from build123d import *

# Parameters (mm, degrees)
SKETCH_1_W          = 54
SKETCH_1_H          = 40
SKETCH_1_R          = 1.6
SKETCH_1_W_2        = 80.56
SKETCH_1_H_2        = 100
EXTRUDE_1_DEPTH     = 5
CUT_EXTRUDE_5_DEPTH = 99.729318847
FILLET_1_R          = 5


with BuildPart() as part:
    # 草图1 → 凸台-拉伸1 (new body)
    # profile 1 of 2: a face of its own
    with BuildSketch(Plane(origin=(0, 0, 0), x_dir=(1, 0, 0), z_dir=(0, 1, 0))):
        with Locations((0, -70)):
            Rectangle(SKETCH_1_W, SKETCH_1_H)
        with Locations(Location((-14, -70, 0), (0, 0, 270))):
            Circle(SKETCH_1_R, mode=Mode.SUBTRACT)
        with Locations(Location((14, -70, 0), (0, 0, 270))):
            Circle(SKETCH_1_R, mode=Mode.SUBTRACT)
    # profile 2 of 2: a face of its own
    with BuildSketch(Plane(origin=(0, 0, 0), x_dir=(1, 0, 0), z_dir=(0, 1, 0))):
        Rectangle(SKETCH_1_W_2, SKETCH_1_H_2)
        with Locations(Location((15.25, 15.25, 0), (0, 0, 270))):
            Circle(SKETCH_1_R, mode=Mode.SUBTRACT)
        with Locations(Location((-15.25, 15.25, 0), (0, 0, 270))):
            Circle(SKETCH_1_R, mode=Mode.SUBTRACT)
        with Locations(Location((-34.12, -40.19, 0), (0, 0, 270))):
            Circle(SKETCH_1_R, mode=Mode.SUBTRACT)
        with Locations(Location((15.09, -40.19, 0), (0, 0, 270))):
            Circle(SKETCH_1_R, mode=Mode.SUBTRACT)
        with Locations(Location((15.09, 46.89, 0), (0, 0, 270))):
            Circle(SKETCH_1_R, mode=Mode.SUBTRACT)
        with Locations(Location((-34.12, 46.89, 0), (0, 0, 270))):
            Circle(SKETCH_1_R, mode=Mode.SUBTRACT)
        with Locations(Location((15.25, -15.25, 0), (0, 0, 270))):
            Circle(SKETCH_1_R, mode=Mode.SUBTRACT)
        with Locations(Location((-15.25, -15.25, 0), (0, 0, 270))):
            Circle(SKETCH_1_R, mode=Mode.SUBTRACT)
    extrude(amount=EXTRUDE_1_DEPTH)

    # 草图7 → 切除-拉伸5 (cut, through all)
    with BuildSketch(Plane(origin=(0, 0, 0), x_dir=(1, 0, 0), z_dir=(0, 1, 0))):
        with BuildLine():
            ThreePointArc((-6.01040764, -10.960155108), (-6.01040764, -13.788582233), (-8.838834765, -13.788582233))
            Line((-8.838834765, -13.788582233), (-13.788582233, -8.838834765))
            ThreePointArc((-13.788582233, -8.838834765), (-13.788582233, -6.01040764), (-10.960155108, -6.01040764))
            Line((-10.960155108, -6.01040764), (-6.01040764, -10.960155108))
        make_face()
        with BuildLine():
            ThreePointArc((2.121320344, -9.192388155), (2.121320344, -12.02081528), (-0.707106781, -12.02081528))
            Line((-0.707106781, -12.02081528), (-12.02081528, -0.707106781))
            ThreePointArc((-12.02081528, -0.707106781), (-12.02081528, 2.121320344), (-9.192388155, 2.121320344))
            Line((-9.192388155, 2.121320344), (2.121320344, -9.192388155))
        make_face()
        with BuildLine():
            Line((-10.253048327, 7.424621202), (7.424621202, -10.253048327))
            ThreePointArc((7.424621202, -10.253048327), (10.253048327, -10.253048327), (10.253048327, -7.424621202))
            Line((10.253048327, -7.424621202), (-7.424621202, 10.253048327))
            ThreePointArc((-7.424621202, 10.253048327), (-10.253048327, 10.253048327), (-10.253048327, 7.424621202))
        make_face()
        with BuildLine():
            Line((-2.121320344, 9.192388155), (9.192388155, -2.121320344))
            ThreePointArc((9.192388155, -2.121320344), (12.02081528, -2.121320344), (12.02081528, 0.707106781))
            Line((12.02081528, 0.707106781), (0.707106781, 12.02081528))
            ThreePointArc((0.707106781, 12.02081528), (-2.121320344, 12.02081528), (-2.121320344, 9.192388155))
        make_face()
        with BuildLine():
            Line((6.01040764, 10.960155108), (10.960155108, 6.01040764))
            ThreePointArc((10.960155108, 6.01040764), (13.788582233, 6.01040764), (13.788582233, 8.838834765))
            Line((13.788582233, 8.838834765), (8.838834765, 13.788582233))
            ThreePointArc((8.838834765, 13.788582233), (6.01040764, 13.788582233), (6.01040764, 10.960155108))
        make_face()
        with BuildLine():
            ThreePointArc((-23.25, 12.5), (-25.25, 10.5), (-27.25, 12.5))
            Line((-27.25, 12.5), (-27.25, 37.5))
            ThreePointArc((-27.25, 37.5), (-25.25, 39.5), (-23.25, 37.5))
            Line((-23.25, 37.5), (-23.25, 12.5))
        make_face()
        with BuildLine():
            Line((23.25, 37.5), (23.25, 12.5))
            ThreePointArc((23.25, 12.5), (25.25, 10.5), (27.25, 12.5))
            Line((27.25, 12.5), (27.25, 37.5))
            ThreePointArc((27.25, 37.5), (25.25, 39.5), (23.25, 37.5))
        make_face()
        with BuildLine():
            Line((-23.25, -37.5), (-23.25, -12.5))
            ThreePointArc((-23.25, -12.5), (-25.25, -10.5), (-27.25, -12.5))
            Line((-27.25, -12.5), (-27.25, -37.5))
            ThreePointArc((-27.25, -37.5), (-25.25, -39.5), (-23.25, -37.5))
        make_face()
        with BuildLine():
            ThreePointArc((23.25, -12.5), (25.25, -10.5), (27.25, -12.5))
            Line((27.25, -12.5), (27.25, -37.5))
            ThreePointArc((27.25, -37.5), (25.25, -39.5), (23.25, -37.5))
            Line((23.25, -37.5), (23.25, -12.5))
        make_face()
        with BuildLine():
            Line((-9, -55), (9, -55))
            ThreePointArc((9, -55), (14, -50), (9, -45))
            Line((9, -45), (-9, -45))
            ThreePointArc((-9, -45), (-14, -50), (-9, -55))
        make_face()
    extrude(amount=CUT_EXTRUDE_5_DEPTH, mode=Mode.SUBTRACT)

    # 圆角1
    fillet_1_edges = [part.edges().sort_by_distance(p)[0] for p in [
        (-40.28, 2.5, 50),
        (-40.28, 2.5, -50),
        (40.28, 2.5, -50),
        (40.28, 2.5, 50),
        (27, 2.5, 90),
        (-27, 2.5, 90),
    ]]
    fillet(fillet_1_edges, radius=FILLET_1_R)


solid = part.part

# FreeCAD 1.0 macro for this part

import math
import FreeCAD as App
import Part
import Sketcher
from FreeCAD import Vector
Q = App.Units.Quantity


def edges_at(feature, points):
    """Names of the edges that pass closest to the given points."""
    edges = feature.Shape.Edges
    near = lambda p: min(range(len(edges)), key=lambda i: edges[i].distToShape(Part.Vertex(*p))[0])
    return sorted({f"Edge{near(p) + 1}" for p in points})


def add_polygon(sketch, points):
    """Adds a closed chain of lines whose ends are joined by coincident constraints."""
    first, n = sketch.GeometryCount, len(points)
    for a, b in zip(points, points[1:] + points[:1]):
        sketch.addGeometry(Part.LineSegment(App.Vector(*a, 0), App.Vector(*b, 0)), False)
    for i in range(n):
        sketch.addConstraint(Sketcher.Constraint("Coincident", first + i, 2, first + (i + 1) % n, 1))

doc = App.newDocument("Part")
body = doc.addObject("PartDesign::Body", "Body")

# Sketch on XZ plane
sketch1 = body.newObject("Sketcher::SketchObject", "Sketch")
sketch1.AttachmentSupport = (doc.getObject("XZ_Plane"), [""])
sketch1.MapMode = "FlatFace"
add_polygon(sketch1, [(-27, 50), (-27, 90), (27, 90), (27, 50), (40.3, 50), (40.3, -50), (-40.3, -50), (-40.3, 50)])  # lines 0-7
sketch1.addGeometry(Part.Circle(Vector(-14, 70, 0), Vector(0, 0, 1), 1.6), False)  # 8
sketch1.addGeometry(Part.Circle(Vector(14, 70, 0), Vector(0, 0, 1), 1.6), False)  # 9
sketch1.addGeometry(Part.Circle(Vector(15.1, -46.9, 0), Vector(0, 0, 1), 1.6), False)  # 10
sketch1.addGeometry(Part.Circle(Vector(-34.1, 40.2, 0), Vector(0, 0, 1), 1.6), False)  # 11
sketch1.addGeometry(Part.Circle(Vector(-15.2, 15.2, 0), Vector(0, 0, 1), 1.6), False)  # 12
sketch1.addGeometry(Part.Circle(Vector(15.1, 40.2, 0), Vector(0, 0, 1), 1.6), False)  # 13
sketch1.addGeometry(Part.Circle(Vector(15.2, 15.2, 0), Vector(0, 0, 1), 1.6), False)  # 14
sketch1.addGeometry(Part.Circle(Vector(-15.2, -15.2, 0), Vector(0, 0, 1), 1.6), False)  # 15
sketch1.addGeometry(Part.Circle(Vector(-34.1, -46.9, 0), Vector(0, 0, 1), 1.6), False)  # 16
sketch1.addGeometry(Part.Circle(Vector(15.2, -15.2, 0), Vector(0, 0, 1), 1.6), False)  # 17
sketch1.addConstraint([
    Sketcher.Constraint("Vertical", 0),
    Sketcher.Constraint("Horizontal", 1),
    Sketcher.Constraint("Vertical", 2),
    Sketcher.Constraint("Horizontal", 3),
    Sketcher.Constraint("Vertical", 4),
    Sketcher.Constraint("Horizontal", 5),
    Sketcher.Constraint("Vertical", 6),
    Sketcher.Constraint("Horizontal", 7),
    Sketcher.Constraint("Equal", 8, 9),
    Sketcher.Constraint("Equal", 9, 10),
    Sketcher.Constraint("Equal", 10, 11),
    Sketcher.Constraint("Equal", 11, 12),
    Sketcher.Constraint("Equal", 12, 13),
    Sketcher.Constraint("Equal", 13, 14),
    Sketcher.Constraint("Equal", 14, 15),
    Sketcher.Constraint("Equal", 15, 16),
    Sketcher.Constraint("Equal", 16, 17),
    Sketcher.Constraint("Symmetric", 14, 3, 15, 3, -1, 1),
    Sketcher.Constraint("Symmetric", 12, 3, 17, 3, -1, 1),
    Sketcher.Constraint("Symmetric", 3, 2, 5, 2, -1, 1),
    Sketcher.Constraint("Symmetric", 8, 3, 9, 3, -2),
    Sketcher.Constraint("Symmetric", 12, 3, 14, 3, -2),
    Sketcher.Constraint("Symmetric", 2, 2, 7, 2, -2),
    Sketcher.Constraint("Horizontal", 11, 3, 13, 3),
    Sketcher.Constraint("Horizontal", 10, 3, 16, 3),
    Sketcher.Constraint("Vertical", 10, 3, 13, 3),
    Sketcher.Constraint("Vertical", 11, 3, 16, 3),
    Sketcher.Constraint("Diameter", 8, Q("3.2 mm")),
    Sketcher.Constraint("DistanceX", 1, 1, 1, 2, Q("54 mm")),
    Sketcher.Constraint("DistanceY", 0, 1, 0, 2, Q("40 mm")),
    Sketcher.Constraint("DistanceY", 4, 2, 4, 1, Q("100 mm")),
    Sketcher.Constraint("DistanceX", 8, 3, -1, 1, Q("14 mm")),
    Sketcher.Constraint("DistanceY", -1, 1, 8, 3, Q("70 mm")),
    Sketcher.Constraint("DistanceX", 3, 1, 3, 2, Q("13.28 mm")),
    Sketcher.Constraint("DistanceX", 12, 3, 14, 3, Q("30.5 mm")),
    Sketcher.Constraint("DistanceY", 15, 3, 12, 3, Q("30.5 mm")),
    Sketcher.Constraint("DistanceX", 16, 3, 4, 2, Q("74.4 mm")),
    Sketcher.Constraint("DistanceX", -1, 1, 10, 3, Q("15.09 mm")),
    Sketcher.Constraint("DistanceY", 10, 3, -1, 1, Q("46.89 mm")),
    Sketcher.Constraint("DistanceY", -1, 1, 11, 3, Q("40.19 mm")),
])
pad1 = body.newObject("PartDesign::Pad", "Pad")
pad1.Profile = sketch1
pad1.Length = 5
pad1.Reversed = True

# Sketch on XZ plane
sketch2 = body.newObject("Sketcher::SketchObject", "Sketch001")
sketch2.AttachmentSupport = (doc.getObject("XZ_Plane"), [""])
sketch2.MapMode = "FlatFace"
sketch2.addGeometry([
    Part.ArcOfCircle(Part.Circle(Vector(-7.4, 12.4, 0), Vector(0, 0, 1), 2), math.radians(-45), math.radians(135)),  # 0
    Part.LineSegment(Vector(-6, 11, 0), Vector(-11, 6, 0)),  # 1
    Part.ArcOfCircle(Part.Circle(Vector(-12.4, 7.4, 0), Vector(0, 0, 1), 2), math.radians(135), math.radians(315)),  # 2
    Part.LineSegment(Vector(-13.8, 8.8, 0), Vector(-8.8, 13.8, 0)),  # 3
    Part.ArcOfCircle(Part.Circle(Vector(0.7, 10.6, 0), Vector(0, 0, 1), 2), math.radians(-45), math.radians(135)),  # 4
    Part.LineSegment(Vector(2.1, 9.2, 0), Vector(-9.2, -2.1, 0)),  # 5
    Part.ArcOfCircle(Part.Circle(Vector(-10.6, -0.7, 0), Vector(0, 0, 1), 2), math.radians(135), math.radians(315)),  # 6
    Part.LineSegment(Vector(-12, 0.7, 0), Vector(-0.7, 12, 0)),  # 7
    Part.LineSegment(Vector(-10.3, -7.4, 0), Vector(7.4, 10.3, 0)),  # 8
    Part.ArcOfCircle(Part.Circle(Vector(8.8, 8.8, 0), Vector(0, 0, 1), 2), math.radians(-45), math.radians(135)),  # 9
    Part.LineSegment(Vector(10.3, 7.4, 0), Vector(-7.4, -10.3, 0)),  # 10
    Part.ArcOfCircle(Part.Circle(Vector(-8.8, -8.8, 0), Vector(0, 0, 1), 2), math.radians(135), math.radians(315)),  # 11
    Part.LineSegment(Vector(-2.1, -9.2, 0), Vector(9.2, 2.1, 0)),  # 12
    Part.ArcOfCircle(Part.Circle(Vector(10.6, 0.7, 0), Vector(0, 0, 1), 2), math.radians(-45), math.radians(135)),  # 13
    Part.LineSegment(Vector(12, -0.7, 0), Vector(0.7, -12, 0)),  # 14
    Part.ArcOfCircle(Part.Circle(Vector(-0.7, -10.6, 0), Vector(0, 0, 1), 2), math.radians(135), math.radians(315)),  # 15
    Part.LineSegment(Vector(6, -11, 0), Vector(11, -6, 0)),  # 16
    Part.ArcOfCircle(Part.Circle(Vector(12.4, -7.4, 0), Vector(0, 0, 1), 2), math.radians(-45), math.radians(135)),  # 17
    Part.LineSegment(Vector(13.8, -8.8, 0), Vector(8.8, -13.8, 0)),  # 18
    Part.ArcOfCircle(Part.Circle(Vector(7.4, -12.4, 0), Vector(0, 0, 1), 2), math.radians(135), math.radians(315)),  # 19
    Part.ArcOfCircle(Part.Circle(Vector(-25.2, -12.5, 0), Vector(0, 0, 1), 2), math.radians(0), math.radians(180)),  # 20
    Part.LineSegment(Vector(-23.2, -12.5, 0), Vector(-23.2, -37.5, 0)),  # 21
    Part.ArcOfCircle(Part.Circle(Vector(-25.2, -37.5, 0), Vector(0, 0, 1), 2), math.radians(180), math.radians(360)),  # 22
    Part.LineSegment(Vector(-27.2, -37.5, 0), Vector(-27.2, -12.5, 0)),  # 23
    Part.LineSegment(Vector(23.2, -37.5, 0), Vector(23.2, -12.5, 0)),  # 24
    Part.ArcOfCircle(Part.Circle(Vector(25.2, -12.5, 0), Vector(0, 0, 1), 2), math.radians(0), math.radians(180)),  # 25
    Part.LineSegment(Vector(27.2, -12.5, 0), Vector(27.2, -37.5, 0)),  # 26
    Part.ArcOfCircle(Part.Circle(Vector(25.2, -37.5, 0), Vector(0, 0, 1), 2), math.radians(180), math.radians(360)),  # 27
    Part.LineSegment(Vector(-23.2, 37.5, 0), Vector(-23.2, 12.5, 0)),  # 28
    Part.ArcOfCircle(Part.Circle(Vector(-25.2, 12.5, 0), Vector(0, 0, 1), 2), math.radians(180), math.radians(360)),  # 29
    Part.LineSegment(Vector(-27.2, 12.5, 0), Vector(-27.2, 37.5, 0)),  # 30
    Part.ArcOfCircle(Part.Circle(Vector(-25.2, 37.5, 0), Vector(0, 0, 1), 2), math.radians(0), math.radians(180)),  # 31
    Part.ArcOfCircle(Part.Circle(Vector(25.2, 12.5, 0), Vector(0, 0, 1), 2), math.radians(180), math.radians(360)),  # 32
    Part.LineSegment(Vector(23.2, 12.5, 0), Vector(23.2, 37.5, 0)),  # 33
    Part.ArcOfCircle(Part.Circle(Vector(25.2, 37.5, 0), Vector(0, 0, 1), 2), math.radians(0), math.radians(180)),  # 34
    Part.LineSegment(Vector(27.2, 37.5, 0), Vector(27.2, 12.5, 0)),  # 35
    Part.LineSegment(Vector(-9, 55, 0), Vector(9, 55, 0)),  # 36
    Part.ArcOfCircle(Part.Circle(Vector(9, 50, 0), Vector(0, 0, 1), 5), math.radians(-90), math.radians(90)),  # 37
    Part.LineSegment(Vector(9, 45, 0), Vector(-9, 45, 0)),  # 38
    Part.ArcOfCircle(Part.Circle(Vector(-9, 50, 0), Vector(0, 0, 1), 5), math.radians(90), math.radians(270)),  # 39
], False)
sketch2.addConstraint([
    Sketcher.Constraint("Tangent", 0, 1, 1, 1),
    Sketcher.Constraint("Tangent", 1, 2, 2, 2),
    Sketcher.Constraint("Tangent", 2, 1, 3, 1),
    Sketcher.Constraint("Tangent", 3, 2, 0, 2),
    Sketcher.Constraint("Tangent", 4, 1, 5, 1),
    Sketcher.Constraint("Tangent", 5, 2, 6, 2),
    Sketcher.Constraint("Tangent", 6, 1, 7, 1),
    Sketcher.Constraint("Tangent", 7, 2, 4, 2),
    Sketcher.Constraint("Tangent", 8, 2, 9, 2),
    Sketcher.Constraint("Tangent", 9, 1, 10, 1),
    Sketcher.Constraint("Tangent", 10, 2, 11, 2),
    Sketcher.Constraint("Tangent", 11, 1, 8, 1),
    Sketcher.Constraint("Tangent", 12, 2, 13, 2),
    Sketcher.Constraint("Tangent", 13, 1, 14, 1),
    Sketcher.Constraint("Tangent", 14, 2, 15, 2),
    Sketcher.Constraint("Tangent", 15, 1, 12, 1),
    Sketcher.Constraint("Tangent", 16, 2, 17, 2),
    Sketcher.Constraint("Tangent", 17, 1, 18, 1),
    Sketcher.Constraint("Tangent", 18, 2, 19, 2),
    Sketcher.Constraint("Tangent", 19, 1, 16, 1),
    Sketcher.Constraint("Tangent", 20, 1, 21, 1),
    Sketcher.Constraint("Tangent", 21, 2, 22, 2),
    Sketcher.Constraint("Tangent", 22, 1, 23, 1),
    Sketcher.Constraint("Tangent", 23, 2, 20, 2),
    Sketcher.Constraint("Tangent", 24, 2, 25, 2),
    Sketcher.Constraint("Tangent", 25, 1, 26, 1),
    Sketcher.Constraint("Tangent", 26, 2, 27, 2),
    Sketcher.Constraint("Tangent", 27, 1, 24, 1),
    Sketcher.Constraint("Tangent", 28, 2, 29, 2),
    Sketcher.Constraint("Tangent", 29, 1, 30, 1),
    Sketcher.Constraint("Tangent", 30, 2, 31, 2),
    Sketcher.Constraint("Tangent", 31, 1, 28, 1),
    Sketcher.Constraint("Tangent", 32, 1, 33, 1),
    Sketcher.Constraint("Tangent", 33, 2, 34, 2),
    Sketcher.Constraint("Tangent", 34, 1, 35, 1),
    Sketcher.Constraint("Tangent", 35, 2, 32, 2),
    Sketcher.Constraint("Tangent", 36, 2, 37, 2),
    Sketcher.Constraint("Tangent", 37, 1, 38, 1),
    Sketcher.Constraint("Tangent", 38, 2, 39, 2),
    Sketcher.Constraint("Tangent", 39, 1, 36, 1),
    Sketcher.Constraint("Vertical", 21),
    Sketcher.Constraint("Vertical", 23),
    Sketcher.Constraint("Vertical", 24),
    Sketcher.Constraint("Vertical", 26),
    Sketcher.Constraint("Vertical", 28),
    Sketcher.Constraint("Vertical", 30),
    Sketcher.Constraint("Vertical", 33),
    Sketcher.Constraint("Vertical", 35),
    Sketcher.Constraint("Horizontal", 36),
    Sketcher.Constraint("Horizontal", 38),
    Sketcher.Constraint("Equal", 0, 2),
    Sketcher.Constraint("Equal", 2, 4),
    Sketcher.Constraint("Equal", 4, 6),
    Sketcher.Constraint("Equal", 6, 9),
    Sketcher.Constraint("Equal", 9, 11),
    Sketcher.Constraint("Equal", 11, 13),
    Sketcher.Constraint("Equal", 13, 15),
    Sketcher.Constraint("Equal", 15, 17),
    Sketcher.Constraint("Equal", 17, 19),
    Sketcher.Constraint("Equal", 19, 20),
    Sketcher.Constraint("Equal", 22, 25),
    Sketcher.Constraint("Equal", 27, 29),
    Sketcher.Constraint("Equal", 31, 32),
    Sketcher.Constraint("Symmetric", 9, 3, 11, 3, -1, 1),
    Sketcher.Constraint("Symmetric", 6, 3, 13, 3, -1, 1),
    Sketcher.Constraint("Symmetric", 4, 3, 15, 3, -1, 1),
    Sketcher.Constraint("Symmetric", 2, 3, 17, 3, -1, 1),
    Sketcher.Constraint("Symmetric", 0, 3, 19, 3, -1, 1),
    Sketcher.Constraint("Symmetric", 25, 3, 29, 3, -1, 1),
    Sketcher.Constraint("Symmetric", 20, 3, 32, 3, -1, 1),
    Sketcher.Constraint("Symmetric", 20, 3, 25, 3, -2),
    Sketcher.Constraint("Parallel", 3, 5),
    Sketcher.Constraint("Parallel", 7, 8),
    Sketcher.Constraint("Horizontal", 22, 3, 27, 3),
    Sketcher.Constraint("Horizontal", 31, 3, 34, 3),
    Sketcher.Constraint("Horizontal", 9, 3, 2, 1),
    Sketcher.Constraint("Horizontal", 13, 3, 6, 1),
    Sketcher.Constraint("Vertical", 11, 3, 3, 2),
    Sketcher.Constraint("Vertical", 15, 3, 7, 2),
    Sketcher.Constraint("Equal", 26, 28),
    Sketcher.Constraint("Radius", 0, Q("2 mm")),
    Sketcher.Constraint("Radius", 37, Q("5 mm")),
    Sketcher.Constraint("DistanceX", 36, 1, 36, 2, Q("18 mm")),
    Sketcher.Constraint("DistanceY", 21, 2, 21, 1, Q("25 mm")),
    Sketcher.Constraint("Angle", 1, Q("-135 deg")),
    Sketcher.Constraint("Distance", 1, Q("7 mm")),
    Sketcher.Constraint("Distance", 5, Q("16 mm")),
    Sketcher.Constraint("Distance", 8, Q("25 mm")),
    Sketcher.Constraint("DistanceX", -1, 1, 37, 3, Q("9 mm")),
    Sketcher.Constraint("DistanceY", -1, 1, 37, 3, Q("50 mm")),
    Sketcher.Constraint("DistanceY", 20, 3, 29, 3, Q("25 mm")),
    Sketcher.Constraint("DistanceX", 20, 3, -1, 1, Q("25.25 mm")),
])
pocket1 = body.newObject("PartDesign::Pocket", "Pocket")
pocket1.Profile = sketch2
pocket1.Type = "ThroughAll"
doc.recompute()

fillet = body.newObject("PartDesign::Fillet", "Fillet")
fillet.Base = (pocket1, edges_at(pocket1, [
    (-40.28, 2.5, 50),
    (-40.28, 2.5, -50),
    (40.28, 2.5, -50),
    (40.28, 2.5, 50),
    (27, 2.5, 90),
    (-27, 2.5, 90),
]))
fillet.Radius = 5

doc.recompute()
